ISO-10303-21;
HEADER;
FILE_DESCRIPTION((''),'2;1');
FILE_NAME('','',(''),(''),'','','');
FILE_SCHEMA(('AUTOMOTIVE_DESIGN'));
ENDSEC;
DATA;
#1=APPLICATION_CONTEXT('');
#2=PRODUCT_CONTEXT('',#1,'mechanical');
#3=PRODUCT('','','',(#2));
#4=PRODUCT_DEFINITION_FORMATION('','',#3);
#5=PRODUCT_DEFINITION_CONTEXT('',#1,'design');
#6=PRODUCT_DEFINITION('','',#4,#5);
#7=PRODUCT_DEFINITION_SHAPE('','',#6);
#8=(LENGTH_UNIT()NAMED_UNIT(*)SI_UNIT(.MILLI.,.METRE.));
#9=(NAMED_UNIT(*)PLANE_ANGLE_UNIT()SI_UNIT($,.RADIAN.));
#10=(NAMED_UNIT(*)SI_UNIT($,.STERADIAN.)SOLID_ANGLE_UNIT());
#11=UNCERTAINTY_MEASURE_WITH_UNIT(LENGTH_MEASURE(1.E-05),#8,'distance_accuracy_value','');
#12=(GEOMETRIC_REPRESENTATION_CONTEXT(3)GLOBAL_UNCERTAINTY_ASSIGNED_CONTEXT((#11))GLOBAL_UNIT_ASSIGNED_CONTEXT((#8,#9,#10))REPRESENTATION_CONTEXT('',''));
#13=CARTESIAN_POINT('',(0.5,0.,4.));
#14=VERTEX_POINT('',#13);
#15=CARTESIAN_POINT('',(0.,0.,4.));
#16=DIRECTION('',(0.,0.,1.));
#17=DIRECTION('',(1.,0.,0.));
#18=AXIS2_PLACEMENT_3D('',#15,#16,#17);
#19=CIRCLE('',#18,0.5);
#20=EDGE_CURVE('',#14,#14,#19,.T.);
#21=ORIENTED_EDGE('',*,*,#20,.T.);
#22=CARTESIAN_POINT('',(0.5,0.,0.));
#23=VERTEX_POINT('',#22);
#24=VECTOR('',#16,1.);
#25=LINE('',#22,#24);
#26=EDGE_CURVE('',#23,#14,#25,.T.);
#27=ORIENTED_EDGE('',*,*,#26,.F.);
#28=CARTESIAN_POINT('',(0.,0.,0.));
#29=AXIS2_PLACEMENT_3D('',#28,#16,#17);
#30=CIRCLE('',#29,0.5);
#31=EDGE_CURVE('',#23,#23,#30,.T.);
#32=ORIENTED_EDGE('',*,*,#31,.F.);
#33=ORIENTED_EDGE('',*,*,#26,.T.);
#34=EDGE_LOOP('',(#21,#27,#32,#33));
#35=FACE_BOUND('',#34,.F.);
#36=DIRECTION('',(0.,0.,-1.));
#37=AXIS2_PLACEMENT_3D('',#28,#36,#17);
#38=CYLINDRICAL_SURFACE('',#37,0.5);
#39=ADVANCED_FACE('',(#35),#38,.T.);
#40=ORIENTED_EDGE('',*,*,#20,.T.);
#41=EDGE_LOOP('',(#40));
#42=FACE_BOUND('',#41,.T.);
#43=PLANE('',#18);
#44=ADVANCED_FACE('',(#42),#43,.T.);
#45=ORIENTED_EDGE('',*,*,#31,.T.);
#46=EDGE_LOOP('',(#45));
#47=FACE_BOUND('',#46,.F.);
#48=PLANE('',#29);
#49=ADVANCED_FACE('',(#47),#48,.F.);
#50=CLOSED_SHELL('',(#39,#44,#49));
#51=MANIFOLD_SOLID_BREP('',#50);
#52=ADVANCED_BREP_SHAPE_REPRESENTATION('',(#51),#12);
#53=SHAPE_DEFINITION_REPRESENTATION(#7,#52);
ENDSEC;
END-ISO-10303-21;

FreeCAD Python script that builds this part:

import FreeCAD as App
import Part
import Sketcher

V = App.Vector
Q = App.Units.Quantity

doc = App.newDocument("Part")
params = doc.addObject("Spreadsheet::Sheet", "Params")
for row, (alias, value) in enumerate([
    ("sketch1_diameter", "1 mm"),
    ("pad1_length", "4 mm"),
], start=1):
    params.set(f"A{row}", alias)
    params.set(f"B{row}", "=" + value)
    params.setAlias(f"B{row}", alias)

body = doc.addObject("PartDesign::Body", "Body")

sketch1 = doc.addObject("Sketcher::SketchObject", "Sketch")
body.addObject(sketch1)
sketch1.AttachmentSupport = (doc.XY_Plane, [""])
sketch1.MapMode = "FlatFace"
sketch1.addGeometry(Part.Circle(V(0, 0, 0), V(0, 0, 1), 0.5), False)
sketch1.addConstraint([
    Sketcher.Constraint("Coincident", 0, 3, -1, 1),
    Sketcher.Constraint("Diameter", 0, Q("1 mm")),
])
sketch1.setExpression("Constraints[1]", "Params.sketch1_diameter")
pad1 = doc.addObject("PartDesign::Pad", "Pad")
body.addObject(pad1)
pad1.Profile = sketch1
pad1.setExpression("Length", "Params.pad1_length")

doc.recompute()
